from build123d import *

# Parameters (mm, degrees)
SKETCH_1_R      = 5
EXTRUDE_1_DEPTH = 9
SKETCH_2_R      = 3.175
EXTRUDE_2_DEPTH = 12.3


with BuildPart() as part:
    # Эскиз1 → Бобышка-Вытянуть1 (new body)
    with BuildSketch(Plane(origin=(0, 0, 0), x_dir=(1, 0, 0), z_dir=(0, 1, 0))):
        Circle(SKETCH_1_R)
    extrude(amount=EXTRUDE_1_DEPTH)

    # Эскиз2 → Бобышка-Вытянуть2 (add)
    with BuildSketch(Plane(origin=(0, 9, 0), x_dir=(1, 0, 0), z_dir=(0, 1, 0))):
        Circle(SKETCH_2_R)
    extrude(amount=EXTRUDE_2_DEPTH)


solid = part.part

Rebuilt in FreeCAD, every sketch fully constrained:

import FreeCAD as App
import Part
import Sketcher

V = App.Vector

doc = App.newDocument("Part")
params = doc.addObject("Spreadsheet::Sheet", "Params")
for row, (alias, value) in enumerate([
    ("sketch1_diameter", "10 mm"),
    ("pad1_length", "9 mm"),
    ("sketch2_diameter", "6.35 mm"),
    ("pad2_length", "12.3 mm"),
], start=1):
    params.set(f"A{row}", alias)
    params.set(f"B{row}", "=" + value)
    params.setAlias(f"B{row}", alias)

body = doc.addObject("PartDesign::Body", "Body")

sketch1 = body.newObject("Sketcher::SketchObject", "Sketch")
sketch1.AttachmentSupport = (doc.getObject("XZ_Plane"), [""])
sketch1.MapMode = "FlatFace"
sketch1.addGeometry(Part.Circle(V(0, 0, 0), V(0, 0, 1), 5), False)
sketch1.addConstraint([
    Sketcher.Constraint("Coincident", 0, 3, -1, 1),
    Sketcher.Constraint("Diameter", 0, 10.0),
])
sketch1.setExpression("Constraints[1]", "Params.sketch1_diameter")
pad1 = body.newObject("PartDesign::Pad", "Pad")
pad1.Profile = sketch1
pad1.setExpression("Length", "Params.pad1_length")
pad1.Reversed = True

sketch2 = body.newObject("Sketcher::SketchObject", "Sketch001")
sketch2.AttachmentSupport = (doc.getObject("XZ_Plane"), [""])
sketch2.MapMode = "FlatFace"
sketch2.AttachmentOffset = App.Placement(V(0, 0, -9), App.Rotation())
sketch2.addGeometry(Part.Circle(V(0, 0, 0), V(0, 0, 1), 3.2), False)
sketch2.addConstraint([
    Sketcher.Constraint("Coincident", 0, 3, -1, 1),
    Sketcher.Constraint("Diameter", 0, 6.35),
])
sketch2.setExpression("Constraints[1]", "Params.sketch2_diameter")
pad2 = body.newObject("PartDesign::Pad", "Pad001")
pad2.Profile = sketch2
pad2.setExpression("Length", "Params.pad2_length")
pad2.Reversed = True

doc.recompute()
